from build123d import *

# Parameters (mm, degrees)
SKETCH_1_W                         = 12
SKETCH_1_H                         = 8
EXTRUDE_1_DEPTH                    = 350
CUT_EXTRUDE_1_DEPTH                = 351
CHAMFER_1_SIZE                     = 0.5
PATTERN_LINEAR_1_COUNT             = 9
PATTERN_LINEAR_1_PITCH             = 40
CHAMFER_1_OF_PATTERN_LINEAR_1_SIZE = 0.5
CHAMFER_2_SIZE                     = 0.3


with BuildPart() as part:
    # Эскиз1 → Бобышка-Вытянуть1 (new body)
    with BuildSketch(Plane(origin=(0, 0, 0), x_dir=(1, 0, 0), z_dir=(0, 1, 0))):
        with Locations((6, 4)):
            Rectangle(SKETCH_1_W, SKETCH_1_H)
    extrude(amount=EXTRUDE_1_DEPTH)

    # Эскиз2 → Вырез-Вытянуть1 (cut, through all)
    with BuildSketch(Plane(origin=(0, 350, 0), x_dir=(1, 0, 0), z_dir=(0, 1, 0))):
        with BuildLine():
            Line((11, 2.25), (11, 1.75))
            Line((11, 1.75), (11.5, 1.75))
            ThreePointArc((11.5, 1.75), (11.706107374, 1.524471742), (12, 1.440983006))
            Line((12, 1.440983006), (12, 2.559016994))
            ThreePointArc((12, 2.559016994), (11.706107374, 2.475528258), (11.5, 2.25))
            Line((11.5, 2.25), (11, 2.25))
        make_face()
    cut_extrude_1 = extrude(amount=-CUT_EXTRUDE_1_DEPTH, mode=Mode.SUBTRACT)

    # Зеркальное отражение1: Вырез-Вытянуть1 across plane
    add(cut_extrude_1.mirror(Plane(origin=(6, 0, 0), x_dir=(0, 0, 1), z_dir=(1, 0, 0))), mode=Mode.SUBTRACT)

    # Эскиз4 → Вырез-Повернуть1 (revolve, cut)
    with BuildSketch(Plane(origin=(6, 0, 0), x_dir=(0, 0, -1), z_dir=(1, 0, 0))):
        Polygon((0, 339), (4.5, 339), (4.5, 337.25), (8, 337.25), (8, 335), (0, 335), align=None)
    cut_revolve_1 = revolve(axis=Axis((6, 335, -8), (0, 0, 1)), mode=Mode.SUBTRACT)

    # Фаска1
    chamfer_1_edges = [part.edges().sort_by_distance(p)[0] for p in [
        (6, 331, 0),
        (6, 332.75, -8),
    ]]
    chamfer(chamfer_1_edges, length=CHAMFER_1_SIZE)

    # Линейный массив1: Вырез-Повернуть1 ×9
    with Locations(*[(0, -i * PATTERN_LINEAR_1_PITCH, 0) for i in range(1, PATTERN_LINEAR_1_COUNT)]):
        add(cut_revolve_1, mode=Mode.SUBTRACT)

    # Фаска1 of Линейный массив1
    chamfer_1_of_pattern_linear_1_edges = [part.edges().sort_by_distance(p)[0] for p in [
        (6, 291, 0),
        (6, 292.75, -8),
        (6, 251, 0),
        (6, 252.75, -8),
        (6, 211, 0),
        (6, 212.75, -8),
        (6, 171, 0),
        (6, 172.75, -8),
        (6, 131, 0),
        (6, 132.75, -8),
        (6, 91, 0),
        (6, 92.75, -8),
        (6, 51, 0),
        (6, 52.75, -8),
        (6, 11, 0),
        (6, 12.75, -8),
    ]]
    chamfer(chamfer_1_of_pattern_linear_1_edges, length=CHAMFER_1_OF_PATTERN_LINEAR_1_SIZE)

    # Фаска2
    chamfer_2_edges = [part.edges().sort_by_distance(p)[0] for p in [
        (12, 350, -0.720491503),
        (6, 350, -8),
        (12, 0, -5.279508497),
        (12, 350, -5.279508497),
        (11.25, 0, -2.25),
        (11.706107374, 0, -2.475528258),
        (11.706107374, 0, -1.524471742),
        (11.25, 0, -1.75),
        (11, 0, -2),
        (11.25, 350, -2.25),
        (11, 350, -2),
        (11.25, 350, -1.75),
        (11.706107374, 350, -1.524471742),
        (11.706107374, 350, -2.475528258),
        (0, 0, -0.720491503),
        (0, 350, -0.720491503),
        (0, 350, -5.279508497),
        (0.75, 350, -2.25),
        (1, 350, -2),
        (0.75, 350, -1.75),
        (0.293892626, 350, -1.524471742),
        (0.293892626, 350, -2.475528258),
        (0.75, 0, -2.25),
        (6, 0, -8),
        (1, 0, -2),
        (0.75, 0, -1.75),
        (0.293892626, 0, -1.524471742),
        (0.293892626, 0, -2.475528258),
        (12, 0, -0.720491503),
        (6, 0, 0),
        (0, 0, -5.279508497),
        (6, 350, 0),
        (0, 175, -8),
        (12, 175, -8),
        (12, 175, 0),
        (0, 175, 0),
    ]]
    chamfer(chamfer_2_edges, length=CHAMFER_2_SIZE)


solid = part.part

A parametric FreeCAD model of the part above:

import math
import FreeCAD as App
import Part
import Sketcher

V = App.Vector


def edges_at(feature, points):
    """Names of the edges that pass closest to the given points."""
    edges = feature.Shape.Edges
    near = lambda p: min(range(len(edges)), key=lambda i: edges[i].distToShape(Part.Vertex(*p))[0])
    return sorted({f"Edge{near(p) + 1}" for p in points})

doc = App.newDocument("Part")
body = doc.addObject("PartDesign::Body", "Body")

# Sketch on XZ plane
sketch1 = body.newObject("Sketcher::SketchObject", "Sketch")
sketch1.AttachmentSupport = (doc.getObject("XZ_Plane"), [""])
sketch1.MapMode = "FlatFace"
sketch1.addGeometry([
    Part.LineSegment(V(0, -8, 0), V(0, 0, 0)),
    Part.LineSegment(V(0, 0, 0), V(12, 0, 0)),
    Part.LineSegment(V(12, 0, 0), V(12, -8, 0)),
    Part.LineSegment(V(12, -8, 0), V(0, -8, 0)),
], False)
sketch1.addConstraint([
    Sketcher.Constraint("Coincident", 0, 2, 1, 1),
    Sketcher.Constraint("Coincident", 1, 2, 2, 1),
    Sketcher.Constraint("Coincident", 2, 2, 3, 1),
    Sketcher.Constraint("Coincident", 3, 2, 0, 1),
    Sketcher.Constraint("Vertical", 0),
    Sketcher.Constraint("Horizontal", 1),
    Sketcher.Constraint("Vertical", 2),
    Sketcher.Constraint("Horizontal", 3),
    Sketcher.Constraint("Coincident", 0, 2, -1, 1),
    Sketcher.Constraint("DistanceX", 1, 1, 1, 2, 12.0),
    Sketcher.Constraint("DistanceY", 0, 1, 0, 2, 8.0),
])
pad1 = body.newObject("PartDesign::Pad", "Pad")
pad1.Profile = sketch1
pad1.Length = 350
pad1.Reversed = True

# Sketch on XZ plane
sketch2 = body.newObject("Sketcher::SketchObject", "Sketch001")
sketch2.AttachmentSupport = (doc.getObject("XZ_Plane"), [""])
sketch2.MapMode = "FlatFace"
sketch2.AttachmentOffset = App.Placement(V(0, 0, -350), App.Rotation())
sketch2.addGeometry([
    Part.LineSegment(V(11, -2.25, 0), V(11, -1.75, 0)),  # 0
    Part.LineSegment(V(11, -1.75, 0), V(11.5, -1.75, 0)),  # 1
    Part.ArcOfCircle(Part.Circle(V(12, -2, 0), V(0, 0, 1), 0.559017), math.radians(90), math.radians(153.434949)),  # 2
    Part.LineSegment(V(12, -1.440983, 0), V(12, -2.559017, 0)),  # 3
    Part.ArcOfCircle(Part.Circle(V(12, -2, 0), V(0, 0, 1), 0.559017), math.radians(-153.434949), math.radians(-90)),  # 4
    Part.LineSegment(V(11.5, -2.25, 0), V(11, -2.25, 0)),  # 5
], False)
sketch2.addConstraint([
    Sketcher.Constraint("Coincident", 0, 2, 1, 1),
    Sketcher.Constraint("Coincident", 1, 2, 2, 2),
    Sketcher.Constraint("Coincident", 2, 1, 3, 1),
    Sketcher.Constraint("Coincident", 3, 2, 4, 2),
    Sketcher.Constraint("Coincident", 4, 1, 5, 1),
    Sketcher.Constraint("Coincident", 5, 2, 0, 1),
    Sketcher.Constraint("Vertical", 0),
    Sketcher.Constraint("Horizontal", 1),
    Sketcher.Constraint("Vertical", 3),
    Sketcher.Constraint("Horizontal", 5),
    Sketcher.Constraint("Coincident", 4, 3, 2, 3),
    Sketcher.Constraint("Equal", 2, 4),
    Sketcher.Constraint("Vertical", 4, 3, 2, 1),
    Sketcher.Constraint("Vertical", 1, 2, 4, 1),
    Sketcher.Constraint("Equal", 5, 0),
    Sketcher.Constraint("DistanceX", 1, 1, 1, 2, 0.5),
    Sketcher.Constraint("DistanceX", -1, 1, 2, 3, 12.0),
    Sketcher.Constraint("DistanceY", 2, 3, -1, 1, 2.0),
    Sketcher.Constraint("DistanceX", -1, 1, 0, 2, 11.0),
])
pocket1 = body.newObject("PartDesign::Pocket", "Pocket")
pocket1.Profile = sketch2
pocket1.Type = "ThroughAll"
pocket1.Reversed = True
doc.recompute()

datumplane = body.newObject("PartDesign::Plane", "DatumPlane")
datumplane.AttachmentSupport = (doc.getObject("YZ_Plane"), [""])
datumplane.MapMode = "FlatFace"
datumplane.AttachmentOffset = App.Placement(V(0, 0, 6), App.Rotation())
mirrored = body.newObject("PartDesign::Mirrored", "Mirrored")
mirrored.Originals = [pocket1]
mirrored.MirrorPlane = (datumplane, [""])
body.Tip = mirrored

# Sketch on YZ plane
sketch3 = body.newObject("Sketcher::SketchObject", "Sketch002")
sketch3.AttachmentSupport = (doc.getObject("YZ_Plane"), [""])
sketch3.MapMode = "FlatFace"
sketch3.AttachmentOffset = App.Placement(V(0, 0, 6), App.Rotation())
sketch3.addGeometry([
    Part.LineSegment(V(339, -4.5, 0), V(339, 0, 0)),  # 0
    Part.LineSegment(V(339, 0, 0), V(335, 0, 0)),  # 1
    Part.LineSegment(V(335, 0, 0), V(335, -8, 0)),  # 2
    Part.LineSegment(V(335, -8, 0), V(337.25, -8, 0)),  # 3
    Part.LineSegment(V(337.25, -8, 0), V(337.25, -4.5, 0)),  # 4
    Part.LineSegment(V(337.25, -4.5, 0), V(339, -4.5, 0)),  # 5
], False)
sketch3.addGeometry(Part.LineSegment(V(335, -8, 0), V(335, 0, 0)), True)  # axis
sketch3.addConstraint([
    Sketcher.Constraint("Coincident", 0, 2, 1, 1),
    Sketcher.Constraint("Coincident", 1, 2, 2, 1),
    Sketcher.Constraint("Coincident", 2, 2, 3, 1),
    Sketcher.Constraint("Coincident", 3, 2, 4, 1),
    Sketcher.Constraint("Coincident", 4, 2, 5, 1),
    Sketcher.Constraint("Coincident", 5, 2, 0, 1),
    Sketcher.Constraint("Vertical", 0),
    Sketcher.Constraint("Horizontal", 1),
    Sketcher.Constraint("Vertical", 2),
    Sketcher.Constraint("Horizontal", 3),
    Sketcher.Constraint("Vertical", 4),
    Sketcher.Constraint("Horizontal", 5),
    Sketcher.Constraint("Vertical", 6),
    Sketcher.Constraint("Coincident", 6, 1, 2, 2),
    Sketcher.Constraint("PointOnObject", 0, 2, -1),
    Sketcher.Constraint("PointOnObject", 6, 2, -1),
    Sketcher.Constraint("DistanceX", 1, 2, 1, 1, 4.0),
    Sketcher.Constraint("DistanceY", 2, 2, 2, 1, 8.0),
    Sketcher.Constraint("DistanceY", 0, 1, 0, 2, 4.5),
    Sketcher.Constraint("DistanceX", -1, 1, 0, 2, 339.0),
    Sketcher.Constraint("DistanceX", 3, 1, 3, 2, 2.25),
])
groove = body.newObject("PartDesign::Groove", "Groove")
groove.Profile = sketch3
groove.ReferenceAxis = (sketch3, ["Axis0"])
groove.Angle = 360
doc.recompute()

chamfer = body.newObject("PartDesign::Chamfer", "Chamfer")
chamfer.Base = (groove, edges_at(groove, [(6, 331, 0), (6, 332.75, -8)]))
chamfer.Size = 0.5
doc.recompute()

linearpattern = body.newObject("PartDesign::LinearPattern", "LinearPattern")
linearpattern.Originals = [groove]
linearpattern.Direction = (doc.getObject("Y_Axis"), [""])
linearpattern.Mode = "offset"
linearpattern.Offset = 40
linearpattern.Occurrences = 9
linearpattern.Reversed = True
body.Tip = linearpattern
doc.recompute()

chamfer2 = body.newObject("PartDesign::Chamfer", "Chamfer001")
chamfer2.Base = (linearpattern, edges_at(linearpattern, [
    (6, 291, 0),
    (6, 292.75, -8),
    (6, 251, 0),
    (6, 252.75, -8),
    (6, 211, 0),
    (6, 212.75, -8),
    (6, 171, 0),
    (6, 172.75, -8),
    (6, 131, 0),
    (6, 132.75, -8),
    (6, 91, 0),
    (6, 92.75, -8),
    (6, 51, 0),
    (6, 52.75, -8),
    (6, 11, 0),
    (6, 12.75, -8),
]))
chamfer2.Size = 0.5
doc.recompute()

chamfer3 = body.newObject("PartDesign::Chamfer", "Chamfer002")
chamfer3.Base = (chamfer2, edges_at(chamfer2, [
    (12, 350, -0.72),
    (6, 350, -8),
    (12, 0, -5.28),
    (12, 350, -5.28),
    (11.25, 0, -2.25),
    (11.706, 0, -2.476),
    (11.706, 0, -1.524),
    (11.25, 0, -1.75),
    (11, 0, -2),
    (11.25, 350, -2.25),
    (11, 350, -2),
    (11.25, 350, -1.75),
    (11.706, 350, -1.524),
    (11.706, 350, -2.476),
    (0, 0, -0.72),
    (0, 350, -0.72),
    (0, 350, -5.28),
    (0.75, 350, -2.25),
    (1, 350, -2),
    (0.75, 350, -1.75),
    (0.294, 350, -1.524),
    (0.294, 350, -2.476),
    (0.75, 0, -2.25),
    (6, 0, -8),
    (1, 0, -2),
    (0.75, 0, -1.75),
    (0.294, 0, -1.524),
    (0.294, 0, -2.476),
    (12, 0, -0.72),
    (6, 0, 0),
    (0, 0, -5.28),
    (6, 350, 0),
    (0, 175, -8),
    (12, 175, -8),
    (12, 175, 0),
    (0, 175, 0),
]))
chamfer3.Size = 0.3

doc.recompute()
